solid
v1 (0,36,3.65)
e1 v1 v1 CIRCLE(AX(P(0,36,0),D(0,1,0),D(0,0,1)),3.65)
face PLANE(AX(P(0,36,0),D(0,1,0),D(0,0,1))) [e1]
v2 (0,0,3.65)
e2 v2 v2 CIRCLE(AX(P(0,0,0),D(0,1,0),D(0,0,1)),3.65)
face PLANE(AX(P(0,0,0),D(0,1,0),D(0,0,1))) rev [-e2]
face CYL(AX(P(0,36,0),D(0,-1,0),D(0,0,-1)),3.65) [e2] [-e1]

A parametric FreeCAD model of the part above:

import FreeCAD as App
import Part
import Sketcher

doc = App.newDocument("Part")
body = doc.addObject("PartDesign::Body", "Body")

# Sketch on XZ plane
sketch1 = doc.addObject("Sketcher::SketchObject", "Sketch")
body.addObject(sketch1)
sketch1.AttachmentSupport = (doc.XZ_Plane, [""])
sketch1.MapMode = "FlatFace"
sketch1.addGeometry(Part.Circle(App.Vector(0, 0, 0), App.Vector(0, 0, 1), 3.6), False)
sketch1.addConstraint(Sketcher.Constraint("Coincident", 0, 3, -1, 1))
sketch1.addConstraint(Sketcher.Constraint("Diameter", 0, 7.3))
pad1 = doc.addObject("PartDesign::Pad", "Pad")
body.addObject(pad1)
pad1.Profile = sketch1
pad1.Length = 36
pad1.Reversed = True

doc.recompute()
